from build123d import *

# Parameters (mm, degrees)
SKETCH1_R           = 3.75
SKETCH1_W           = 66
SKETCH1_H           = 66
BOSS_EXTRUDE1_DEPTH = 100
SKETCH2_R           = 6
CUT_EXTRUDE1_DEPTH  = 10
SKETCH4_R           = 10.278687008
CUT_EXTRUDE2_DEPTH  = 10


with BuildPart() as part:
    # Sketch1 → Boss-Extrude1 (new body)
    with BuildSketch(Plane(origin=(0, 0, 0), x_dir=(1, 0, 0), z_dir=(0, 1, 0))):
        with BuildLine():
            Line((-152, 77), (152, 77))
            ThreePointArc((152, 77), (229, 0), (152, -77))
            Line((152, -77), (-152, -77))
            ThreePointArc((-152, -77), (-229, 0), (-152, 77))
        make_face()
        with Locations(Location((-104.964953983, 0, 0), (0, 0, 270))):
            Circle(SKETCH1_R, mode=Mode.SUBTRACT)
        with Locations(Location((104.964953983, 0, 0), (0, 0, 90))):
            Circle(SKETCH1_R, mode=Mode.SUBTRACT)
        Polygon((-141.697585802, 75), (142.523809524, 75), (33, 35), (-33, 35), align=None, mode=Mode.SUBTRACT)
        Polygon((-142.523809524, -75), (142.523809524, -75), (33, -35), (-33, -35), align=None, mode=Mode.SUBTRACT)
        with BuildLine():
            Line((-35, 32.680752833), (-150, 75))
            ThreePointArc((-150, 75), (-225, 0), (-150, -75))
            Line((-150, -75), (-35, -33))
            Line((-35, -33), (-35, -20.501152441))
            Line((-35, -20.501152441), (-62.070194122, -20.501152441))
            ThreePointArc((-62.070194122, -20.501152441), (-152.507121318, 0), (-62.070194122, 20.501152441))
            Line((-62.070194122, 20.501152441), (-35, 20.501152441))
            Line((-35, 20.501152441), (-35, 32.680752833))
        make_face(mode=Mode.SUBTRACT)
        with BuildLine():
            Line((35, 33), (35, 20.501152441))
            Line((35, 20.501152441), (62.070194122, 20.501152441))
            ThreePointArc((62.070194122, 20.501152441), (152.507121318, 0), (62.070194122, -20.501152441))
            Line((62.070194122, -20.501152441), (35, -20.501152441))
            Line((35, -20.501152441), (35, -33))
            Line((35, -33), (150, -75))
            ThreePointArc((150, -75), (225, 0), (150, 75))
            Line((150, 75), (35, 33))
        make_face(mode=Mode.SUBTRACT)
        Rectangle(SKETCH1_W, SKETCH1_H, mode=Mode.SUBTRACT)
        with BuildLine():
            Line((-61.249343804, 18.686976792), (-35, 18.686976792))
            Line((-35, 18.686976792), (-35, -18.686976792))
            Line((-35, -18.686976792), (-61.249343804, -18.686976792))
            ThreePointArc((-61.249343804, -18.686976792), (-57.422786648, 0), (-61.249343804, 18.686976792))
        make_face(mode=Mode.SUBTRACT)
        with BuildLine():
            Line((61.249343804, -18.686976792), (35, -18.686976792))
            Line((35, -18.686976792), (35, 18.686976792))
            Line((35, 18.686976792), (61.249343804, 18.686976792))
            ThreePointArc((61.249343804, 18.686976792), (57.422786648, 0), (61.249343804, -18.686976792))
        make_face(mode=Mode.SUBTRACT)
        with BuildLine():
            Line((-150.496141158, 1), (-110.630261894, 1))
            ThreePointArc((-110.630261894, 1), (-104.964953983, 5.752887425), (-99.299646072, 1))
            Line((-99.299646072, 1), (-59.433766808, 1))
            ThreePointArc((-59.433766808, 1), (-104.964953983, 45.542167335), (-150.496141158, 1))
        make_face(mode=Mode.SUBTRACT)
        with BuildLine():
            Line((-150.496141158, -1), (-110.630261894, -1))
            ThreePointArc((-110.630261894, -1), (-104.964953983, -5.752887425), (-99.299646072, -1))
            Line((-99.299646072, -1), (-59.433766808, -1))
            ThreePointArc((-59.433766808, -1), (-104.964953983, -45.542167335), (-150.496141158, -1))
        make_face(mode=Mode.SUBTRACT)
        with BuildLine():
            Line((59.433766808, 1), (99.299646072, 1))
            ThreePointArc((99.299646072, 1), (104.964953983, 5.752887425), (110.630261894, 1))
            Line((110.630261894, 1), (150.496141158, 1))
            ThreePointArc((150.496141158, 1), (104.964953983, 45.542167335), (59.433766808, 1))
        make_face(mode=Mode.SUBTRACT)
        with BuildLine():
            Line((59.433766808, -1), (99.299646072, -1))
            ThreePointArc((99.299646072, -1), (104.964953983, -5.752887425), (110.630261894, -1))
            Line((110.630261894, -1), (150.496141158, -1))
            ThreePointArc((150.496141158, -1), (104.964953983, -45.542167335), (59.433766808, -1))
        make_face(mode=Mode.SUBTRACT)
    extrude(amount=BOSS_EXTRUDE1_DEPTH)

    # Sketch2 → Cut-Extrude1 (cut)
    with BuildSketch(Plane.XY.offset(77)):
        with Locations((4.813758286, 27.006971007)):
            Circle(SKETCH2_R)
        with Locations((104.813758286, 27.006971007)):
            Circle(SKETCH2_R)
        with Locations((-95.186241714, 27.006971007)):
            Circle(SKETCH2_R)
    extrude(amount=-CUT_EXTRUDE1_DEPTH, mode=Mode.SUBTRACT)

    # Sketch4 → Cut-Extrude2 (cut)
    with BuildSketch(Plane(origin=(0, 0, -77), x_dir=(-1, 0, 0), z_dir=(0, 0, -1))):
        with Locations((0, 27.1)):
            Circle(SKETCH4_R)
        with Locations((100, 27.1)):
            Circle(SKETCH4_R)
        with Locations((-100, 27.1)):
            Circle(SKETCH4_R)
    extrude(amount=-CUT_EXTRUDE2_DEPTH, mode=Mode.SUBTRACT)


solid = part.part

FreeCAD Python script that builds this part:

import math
import FreeCAD as App
import Part
import Sketcher
from FreeCAD import Vector


def add_polygon(sketch, points):
    """Adds a closed chain of lines whose ends are joined by coincident constraints."""
    first, n = sketch.GeometryCount, len(points)
    for a, b in zip(points, points[1:] + points[:1]):
        sketch.addGeometry(Part.LineSegment(App.Vector(*a, 0), App.Vector(*b, 0)), False)
    for i in range(n):
        sketch.addConstraint(Sketcher.Constraint("Coincident", first + i, 2, first + (i + 1) % n, 1))

doc = App.newDocument("Part")
body = doc.addObject("PartDesign::Body", "Body")

# Sketch on XZ plane
sketch1 = body.newObject("Sketcher::SketchObject", "Sketch")
sketch1.AttachmentSupport = (doc.getObject("XZ_Plane"), [""])
sketch1.MapMode = "FlatFace"
sketch1.addGeometry(Part.LineSegment(Vector(152, -77, 0), Vector(-152, -77, 0)), False)  # 0
sketch1.addGeometry(Part.ArcOfCircle(Part.Circle(Vector(-152, 0, 0), Vector(0, 0, 1), 77), math.radians(90), math.radians(270)), False)  # 1
sketch1.addGeometry(Part.LineSegment(Vector(-152, 77, 0), Vector(152, 77, 0)), False)  # 2
sketch1.addGeometry(Part.ArcOfCircle(Part.Circle(Vector(152, 0, 0), Vector(0, 0, 1), 77), math.radians(-90), math.radians(90)), False)  # 3
sketch1.addGeometry(Part.LineSegment(Vector(59.433767, 1, 0), Vector(99.299646, 1, 0)), False)  # 4
sketch1.addGeometry(Part.ArcOfCircle(Part.Circle(Vector(104.964954, 0, 0), Vector(0, 0, 1), 5.752887), math.radians(10.010332), math.radians(169.989668)), False)  # 5
sketch1.addGeometry(Part.LineSegment(Vector(110.630262, 1, 0), Vector(150.496141, 1, 0)), False)  # 6
sketch1.addGeometry(Part.ArcOfCircle(Part.Circle(Vector(104.964954, 0, 0), Vector(0, 0, 1), 45.542167), math.radians(1.258183), math.radians(178.741817)), False)  # 7
add_polygon(sketch1, [(-142.52381, 75), (-33, 35), (33, 35), (142.52381, 75)])  # lines 8-11
sketch1.addGeometry(Part.LineSegment(Vector(-150.496141, 1, 0), Vector(-110.630262, 1, 0)), False)  # 12
sketch1.addGeometry(Part.ArcOfCircle(Part.Circle(Vector(-104.964954, 0, 0), Vector(0, 0, 1), 5.752887), math.radians(10.010332), math.radians(169.989668)), False)  # 13
sketch1.addGeometry(Part.LineSegment(Vector(-99.299646, 1, 0), Vector(-59.433767, 1, 0)), False)  # 14
sketch1.addGeometry(Part.ArcOfCircle(Part.Circle(Vector(-104.964954, 0, 0), Vector(0, 0, 1), 45.542167), math.radians(1.258183), math.radians(178.741817)), False)  # 15
sketch1.addGeometry(Part.LineSegment(Vector(35, -33, 0), Vector(150, -75, 0)), False)  # 16
sketch1.addGeometry(Part.ArcOfCircle(Part.Circle(Vector(150, 0, 0), Vector(0, 0, 1), 75), math.radians(-90), math.radians(90)), False)  # 17
sketch1.addGeometry(Part.LineSegment(Vector(150, 75, 0), Vector(35, 33, 0)), False)  # 18
sketch1.addGeometry(Part.LineSegment(Vector(35, 33, 0), Vector(35, 20.501152, 0)), False)  # 19
sketch1.addGeometry(Part.LineSegment(Vector(35, 20.501152, 0), Vector(62.070194, 20.501152, 0)), False)  # 20
sketch1.addGeometry(Part.ArcOfCircle(Part.Circle(Vector(104.964954, 0, 0), Vector(0, 0, 1), 47.542167), math.radians(-154.454965), math.radians(154.454965)), False)  # 21
sketch1.addGeometry(Part.LineSegment(Vector(62.070194, -20.501152, 0), Vector(35, -20.501152, 0)), False)  # 22
sketch1.addGeometry(Part.LineSegment(Vector(35, -20.501152, 0), Vector(35, -33, 0)), False)  # 23
sketch1.addGeometry(Part.Circle(Vector(104.964954, 0, 0), Vector(0, 0, 1), 3.75), False)  # 24
sketch1.addGeometry(Part.LineSegment(Vector(61.249344, 18.686977, 0), Vector(35, 18.686977, 0)), False)  # 25
sketch1.addGeometry(Part.LineSegment(Vector(35, 18.686977, 0), Vector(35, -18.686977, 0)), False)  # 26
sketch1.addGeometry(Part.LineSegment(Vector(35, -18.686977, 0), Vector(61.249344, -18.686977, 0)), False)  # 27
sketch1.addGeometry(Part.ArcOfCircle(Part.Circle(Vector(104.964954, 0, 0), Vector(0, 0, 1), 47.542167), math.radians(156.854895), math.radians(203.145105)), False)  # 28
sketch1.addGeometry(Part.ArcOfCircle(Part.Circle(Vector(104.964954, 0, 0), Vector(0, 0, 1), 45.542167), math.radians(-178.741817), math.radians(-1.258183)), False)  # 29
sketch1.addGeometry(Part.LineSegment(Vector(150.496141, -1, 0), Vector(110.630262, -1, 0)), False)  # 30
sketch1.addGeometry(Part.ArcOfCircle(Part.Circle(Vector(104.964954, 0, 0), Vector(0, 0, 1), 5.752887), math.radians(-169.989668), math.radians(-10.010332)), False)  # 31
sketch1.addGeometry(Part.LineSegment(Vector(99.299646, -1, 0), Vector(59.433767, -1, 0)), False)  # 32
add_polygon(sketch1, [(-141.697586, -75), (142.52381, -75), (33, -35), (-33, -35)])  # lines 33-36
add_polygon(sketch1, [(-33, 33), (-33, -33), (33, -33), (33, 33)])  # lines 37-40
sketch1.addGeometry(Part.LineSegment(Vector(-61.249344, -18.686977, 0), Vector(-35, -18.686977, 0)), False)  # 41
sketch1.addGeometry(Part.LineSegment(Vector(-35, -18.686977, 0), Vector(-35, 18.686977, 0)), False)  # 42
sketch1.addGeometry(Part.LineSegment(Vector(-35, 18.686977, 0), Vector(-61.249344, 18.686977, 0)), False)  # 43
sketch1.addGeometry(Part.ArcOfCircle(Part.Circle(Vector(-104.964954, 0, 0), Vector(0, 0, 1), 47.542167), math.radians(-23.145105), math.radians(23.145105)), False)  # 44
sketch1.addGeometry(Part.Circle(Vector(-104.964954, 0, 0), Vector(0, 0, 1), 3.75), False)  # 45
sketch1.addGeometry(Part.ArcOfCircle(Part.Circle(Vector(-104.964954, 0, 0), Vector(0, 0, 1), 45.542167), math.radians(-178.741817), math.radians(-1.258183)), False)  # 46
sketch1.addGeometry(Part.LineSegment(Vector(-59.433767, -1, 0), Vector(-99.299646, -1, 0)), False)  # 47
sketch1.addGeometry(Part.ArcOfCircle(Part.Circle(Vector(-104.964954, 0, 0), Vector(0, 0, 1), 5.752887), math.radians(-169.989668), math.radians(-10.010332)), False)  # 48
sketch1.addGeometry(Part.LineSegment(Vector(-110.630262, -1, 0), Vector(-150.496141, -1, 0)), False)  # 49
sketch1.addGeometry(Part.LineSegment(Vector(-35, -32.680753, 0), Vector(-35, -20.501152, 0)), False)  # 50
sketch1.addGeometry(Part.LineSegment(Vector(-35, -20.501152, 0), Vector(-62.070194, -20.501152, 0)), False)  # 51
sketch1.addGeometry(Part.ArcOfCircle(Part.Circle(Vector(-104.964954, 0, 0), Vector(0, 0, 1), 47.542167), math.radians(25.545035), math.radians(334.454965)), False)  # 52
sketch1.addGeometry(Part.LineSegment(Vector(-62.070194, 20.501152, 0), Vector(-35, 20.501152, 0)), False)  # 53
sketch1.addGeometry(Part.LineSegment(Vector(-35, 20.501152, 0), Vector(-35, 33, 0)), False)  # 54
sketch1.addGeometry(Part.LineSegment(Vector(-35, 33, 0), Vector(-150, 75, 0)), False)  # 55
sketch1.addGeometry(Part.ArcOfCircle(Part.Circle(Vector(-150, 0, 0), Vector(0, 0, 1), 75), math.radians(90), math.radians(270)), False)  # 56
sketch1.addGeometry(Part.LineSegment(Vector(-150, -75, 0), Vector(-35, -32.680753, 0)), False)  # 57
sketch1.addConstraint(Sketcher.Constraint("Tangent", 0, 2, 1, 2))
sketch1.addConstraint(Sketcher.Constraint("Tangent", 1, 1, 2, 1))
sketch1.addConstraint(Sketcher.Constraint("Tangent", 2, 2, 3, 2))
sketch1.addConstraint(Sketcher.Constraint("Tangent", 3, 1, 0, 1))
sketch1.addConstraint(Sketcher.Constraint("Coincident", 4, 2, 5, 2))
sketch1.addConstraint(Sketcher.Constraint("Coincident", 5, 1, 6, 1))
sketch1.addConstraint(Sketcher.Constraint("Coincident", 6, 2, 7, 1))
sketch1.addConstraint(Sketcher.Constraint("Coincident", 7, 2, 4, 1))
sketch1.addConstraint(Sketcher.Constraint("Coincident", 12, 2, 13, 2))
sketch1.addConstraint(Sketcher.Constraint("Coincident", 13, 1, 14, 1))
sketch1.addConstraint(Sketcher.Constraint("Coincident", 14, 2, 15, 1))
sketch1.addConstraint(Sketcher.Constraint("Coincident", 15, 2, 12, 1))
sketch1.addConstraint(Sketcher.Constraint("Coincident", 16, 2, 17, 1))
sketch1.addConstraint(Sketcher.Constraint("Coincident", 17, 2, 18, 1))
sketch1.addConstraint(Sketcher.Constraint("Coincident", 18, 2, 19, 1))
sketch1.addConstraint(Sketcher.Constraint("Coincident", 19, 2, 20, 1))
sketch1.addConstraint(Sketcher.Constraint("Coincident", 20, 2, 21, 2))
sketch1.addConstraint(Sketcher.Constraint("Coincident", 21, 1, 22, 1))
sketch1.addConstraint(Sketcher.Constraint("Coincident", 22, 2, 23, 1))
sketch1.addConstraint(Sketcher.Constraint("Coincident", 23, 2, 16, 1))
sketch1.addConstraint(Sketcher.Constraint("Coincident", 25, 2, 26, 1))
sketch1.addConstraint(Sketcher.Constraint("Coincident", 26, 2, 27, 1))
sketch1.addConstraint(Sketcher.Constraint("Coincident", 27, 2, 28, 2))
sketch1.addConstraint(Sketcher.Constraint("Coincident", 28, 1, 25, 1))
sketch1.addConstraint(Sketcher.Constraint("Coincident", 29, 2, 30, 1))
sketch1.addConstraint(Sketcher.Constraint("Coincident", 30, 2, 31, 2))
sketch1.addConstraint(Sketcher.Constraint("Coincident", 31, 1, 32, 1))
sketch1.addConstraint(Sketcher.Constraint("Coincident", 32, 2, 29, 1))
sketch1.addConstraint(Sketcher.Constraint("Coincident", 41, 2, 42, 1))
sketch1.addConstraint(Sketcher.Constraint("Coincident", 42, 2, 43, 1))
sketch1.addConstraint(Sketcher.Constraint("Coincident", 43, 2, 44, 2))
sketch1.addConstraint(Sketcher.Constraint("Coincident", 44, 1, 41, 1))
sketch1.addConstraint(Sketcher.Constraint("Coincident", 46, 2, 47, 1))
sketch1.addConstraint(Sketcher.Constraint("Coincident", 47, 2, 48, 2))
sketch1.addConstraint(Sketcher.Constraint("Coincident", 48, 1, 49, 1))
sketch1.addConstraint(Sketcher.Constraint("Coincident", 49, 2, 46, 1))
sketch1.addConstraint(Sketcher.Constraint("Coincident", 50, 2, 51, 1))
sketch1.addConstraint(Sketcher.Constraint("Coincident", 51, 2, 52, 2))
sketch1.addConstraint(Sketcher.Constraint("Coincident", 52, 1, 53, 1))
sketch1.addConstraint(Sketcher.Constraint("Coincident", 53, 2, 54, 1))
sketch1.addConstraint(Sketcher.Constraint("Coincident", 54, 2, 55, 1))
sketch1.addConstraint(Sketcher.Constraint("Coincident", 55, 2, 56, 1))
sketch1.addConstraint(Sketcher.Constraint("Coincident", 56, 2, 57, 1))
sketch1.addConstraint(Sketcher.Constraint("Coincident", 57, 2, 50, 1))
sketch1.addConstraint(Sketcher.Constraint("Horizontal", 0))
sketch1.addConstraint(Sketcher.Constraint("Horizontal", 2))
sketch1.addConstraint(Sketcher.Constraint("Horizontal", 4))
sketch1.addConstraint(Sketcher.Constraint("Horizontal", 6))
sketch1.addConstraint(Sketcher.Constraint("Horizontal", 9))
sketch1.addConstraint(Sketcher.Constraint("Horizontal", 11))
sketch1.addConstraint(Sketcher.Constraint("Horizontal", 12))
sketch1.addConstraint(Sketcher.Constraint("Horizontal", 14))
sketch1.addConstraint(Sketcher.Constraint("Vertical", 19))
sketch1.addConstraint(Sketcher.Constraint("Horizontal", 20))
sketch1.addConstraint(Sketcher.Constraint("Horizontal", 22))
sketch1.addConstraint(Sketcher.Constraint("Vertical", 23))
sketch1.addConstraint(Sketcher.Constraint("Horizontal", 25))
sketch1.addConstraint(Sketcher.Constraint("Vertical", 26))
sketch1.addConstraint(Sketcher.Constraint("Horizontal", 27))
sketch1.addConstraint(Sketcher.Constraint("Horizontal", 30))
sketch1.addConstraint(Sketcher.Constraint("Horizontal", 32))
sketch1.addConstraint(Sketcher.Constraint("Horizontal", 33))
sketch1.addConstraint(Sketcher.Constraint("Horizontal", 35))
sketch1.addConstraint(Sketcher.Constraint("Vertical", 37))
sketch1.addConstraint(Sketcher.Constraint("Horizontal", 38))
sketch1.addConstraint(Sketcher.Constraint("Vertical", 39))
sketch1.addConstraint(Sketcher.Constraint("Horizontal", 40))
sketch1.addConstraint(Sketcher.Constraint("Horizontal", 41))
sketch1.addConstraint(Sketcher.Constraint("Vertical", 42))
sketch1.addConstraint(Sketcher.Constraint("Horizontal", 43))
sketch1.addConstraint(Sketcher.Constraint("Horizontal", 47))
sketch1.addConstraint(Sketcher.Constraint("Horizontal", 49))
sketch1.addConstraint(Sketcher.Constraint("Vertical", 50))
sketch1.addConstraint(Sketcher.Constraint("Horizontal", 51))
sketch1.addConstraint(Sketcher.Constraint("Horizontal", 53))
sketch1.addConstraint(Sketcher.Constraint("Vertical", 54))
sketch1.addConstraint(Sketcher.Constraint("Coincident", 7, 3, 5, 3))
sketch1.addConstraint(Sketcher.Constraint("Coincident", 15, 3, 13, 3))
sketch1.addConstraint(Sketcher.Constraint("Coincident", 21, 3, 5, 3))
sketch1.addConstraint(Sketcher.Constraint("Coincident", 24, 3, 5, 3))
sketch1.addConstraint(Sketcher.Constraint("Coincident", 28, 3, 5, 3))
sketch1.addConstraint(Sketcher.Constraint("Coincident", 29, 3, 5, 3))
sketch1.addConstraint(Sketcher.Constraint("Coincident", 31, 3, 5, 3))
sketch1.addConstraint(Sketcher.Constraint("Coincident", 44, 3, 13, 3))
sketch1.addConstraint(Sketcher.Constraint("Coincident", 45, 3, 13, 3))
sketch1.addConstraint(Sketcher.Constraint("Coincident", 46, 3, 13, 3))
sketch1.addConstraint(Sketcher.Constraint("Coincident", 48, 3, 13, 3))
sketch1.addConstraint(Sketcher.Constraint("Coincident", 52, 3, 13, 3))
sketch1.addConstraint(Sketcher.Constraint("Equal", 5, 13))
sketch1.addConstraint(Sketcher.Constraint("Equal", 7, 15))
sketch1.addConstraint(Sketcher.Constraint("Equal", 21, 28))
sketch1.addConstraint(Sketcher.Constraint("Equal", 15, 29))
sketch1.addConstraint(Sketcher.Constraint("Equal", 13, 31))
sketch1.addConstraint(Sketcher.Constraint("Equal", 28, 44))
sketch1.addConstraint(Sketcher.Constraint("Equal", 24, 45))
sketch1.addConstraint(Sketcher.Constraint("Equal", 29, 46))
sketch1.addConstraint(Sketcher.Constraint("Equal", 31, 48))
sketch1.addConstraint(Sketcher.Constraint("Equal", 44, 52))
sketch1.addConstraint(Sketcher.Constraint("Equal", 17, 56))
sketch1.addConstraint(Sketcher.Constraint("Symmetric", 1, 3, 3, 3, -1, 1))
sketch1.addConstraint(Sketcher.Constraint("Symmetric", 5, 3, 13, 3, -1, 1))
sketch1.addConstraint(Sketcher.Constraint("Symmetric", 17, 3, 56, 3, -1, 1))
sketch1.addConstraint(Sketcher.Constraint("Symmetric", 11, 2, 33, 2, -1, 1))
sketch1.addConstraint(Sketcher.Constraint("Symmetric", 8, 2, 34, 2, -1, 1))
sketch1.addConstraint(Sketcher.Constraint("Symmetric", 37, 2, 39, 2, -1, 1))
sketch1.addConstraint(Sketcher.Constraint("Symmetric", 25, 2, 41, 2, -1, 1))
sketch1.addConstraint(Sketcher.Constraint("Symmetric", 19, 2, 50, 2, -1, 1))
sketch1.addConstraint(Sketcher.Constraint("Symmetric", 22, 2, 53, 2, -1, 1))
sketch1.addConstraint(Sketcher.Constraint("Symmetric", 5, 1, 12, 2, -2))
sketch1.addConstraint(Sketcher.Constraint("Symmetric", 22, 2, 50, 2, -2))
sketch1.addConstraint(Sketcher.Constraint("Symmetric", 17, 2, 55, 2, -2))
sketch1.addConstraint(Sketcher.Constraint("Parallel", 8, 16))
sketch1.addConstraint(Sketcher.Constraint("Parallel", 10, 18))
sketch1.addConstraint(Sketcher.Constraint("Parallel", 34, 55))
sketch1.addConstraint(Sketcher.Constraint("Parallel", 36, 57))
sketch1.addConstraint(Sketcher.Constraint("Horizontal", 4, 2, 5, 1))
sketch1.addConstraint(Sketcher.Constraint("Horizontal", 12, 2, 13, 1))
sketch1.addConstraint(Sketcher.Constraint("Horizontal", 11, 2, 17, 2))
sketch1.addConstraint(Sketcher.Constraint("Horizontal", 30, 2, 31, 1))
sketch1.addConstraint(Sketcher.Constraint("Horizontal", 23, 2, 37, 2))
sketch1.addConstraint(Sketcher.Constraint("Horizontal", 18, 2, 39, 2))
sketch1.addConstraint(Sketcher.Constraint("Horizontal", 27, 2, 41, 2))
sketch1.addConstraint(Sketcher.Constraint("Horizontal", 28, 1, 42, 2))
sketch1.addConstraint(Sketcher.Constraint("Horizontal", 32, 2, 46, 2))
sketch1.addConstraint(Sketcher.Constraint("Horizontal", 47, 2, 48, 1))
sketch1.addConstraint(Sketcher.Constraint("Horizontal", 40, 2, 54, 2))
sketch1.addConstraint(Sketcher.Constraint("Vertical", 17, 3, 16, 2))
sketch1.addConstraint(Sketcher.Constraint("Vertical", 23, 2, 25, 2))
sketch1.addConstraint(Sketcher.Constraint("Vertical", 6, 2, 29, 2))
sketch1.addConstraint(Sketcher.Constraint("Vertical", 10, 2, 33, 2))
sketch1.addConstraint(Sketcher.Constraint("Vertical", 8, 2, 35, 2))
sketch1.addConstraint(Sketcher.Constraint("Vertical", 35, 2, 37, 2))
sketch1.addConstraint(Sketcher.Constraint("Vertical", 55, 2, 56, 2))
sketch1.addConstraint(Sketcher.Constraint("Equal", 40, 37))
sketch1.addConstraint(Sketcher.Constraint("Radius", 1, 77.0))
sketch1.addConstraint(Sketcher.Constraint("Radius", 17, 75.0))
sketch1.addConstraint(Sketcher.Constraint("Diameter", 24, 7.5))
sketch1.addConstraint(Sketcher.Constraint("DistanceX", 0, 2, 0, 1, 304.0))
sketch1.addConstraint(Sketcher.Constraint("DistanceX", 9, 1, 9, 2, 66.0))
sketch1.addConstraint(Sketcher.Constraint("DistanceX", -1, 1, 17, 3, 150.0))
sketch1.addConstraint(Sketcher.Constraint("DistanceY", -1, 1, 4, 2, 1.0))
sketch1.addConstraint(Sketcher.Constraint("DistanceY", -1, 1, 8, 2, 35.0))
sketch1.addConstraint(Sketcher.Constraint("DistanceX", -1, 1, 18, 2, 35.0))
sketch1.addConstraint(Sketcher.Constraint("DistanceY", 50, 1, 50, 2, 12.1796))
sketch1.addConstraint(Sketcher.Constraint("Radius", 5, 5.752887))
sketch1.addConstraint(Sketcher.Constraint("Radius", 7, 45.542167))
sketch1.addConstraint(Sketcher.Constraint("Radius", 21, 47.542167))
sketch1.addConstraint(Sketcher.Constraint("DistanceX", 20, 1, 20, 2, 27.070194))
sketch1.addConstraint(Sketcher.Constraint("DistanceX", 25, 2, 25, 1, 26.249344))
sketch1.addConstraint(Sketcher.Constraint("DistanceX", 33, 1, 33, 2, 284.221395))
pad1 = body.newObject("PartDesign::Pad", "Pad")
pad1.Profile = sketch1
pad1.Length = 100
pad1.Reversed = True

# Sketch on XY plane
sketch2 = body.newObject("Sketcher::SketchObject", "Sketch001")
sketch2.AttachmentSupport = (doc.getObject("XY_Plane"), [""])
sketch2.MapMode = "FlatFace"
sketch2.AttachmentOffset = App.Placement(Vector(0, 0, 77), App.Rotation())
sketch2.addGeometry(Part.Circle(Vector(4.813758, 27.006971, 0), Vector(0, 0, 1), 6), False)
sketch2.addGeometry(Part.Circle(Vector(104.813758, 27.006971, 0), Vector(0, 0, 1), 6), False)
sketch2.addGeometry(Part.Circle(Vector(-95.186242, 27.006971, 0), Vector(0, 0, 1), 6), False)
sketch2.addConstraint(Sketcher.Constraint("Equal", 0, 1))
sketch2.addConstraint(Sketcher.Constraint("Equal", 1, 2))
sketch2.addConstraint(Sketcher.Constraint("Horizontal", 0, 3, 1, 3))
sketch2.addConstraint(Sketcher.Constraint("Horizontal", 1, 3, 2, 3))
sketch2.addConstraint(Sketcher.Constraint("Diameter", 0, 12.0))
sketch2.addConstraint(Sketcher.Constraint("DistanceX", 0, 3, 1, 3, 100.0))
sketch2.addConstraint(Sketcher.Constraint("DistanceX", 2, 3, 0, 3, 100.0))
sketch2.addConstraint(Sketcher.Constraint("DistanceX", -1, 1, 0, 3, 4.813758))
sketch2.addConstraint(Sketcher.Constraint("DistanceY", -1, 1, 0, 3, 27.006971))
pocket1 = body.newObject("PartDesign::Pocket", "Pocket")
pocket1.Profile = sketch2
pocket1.Length = 10

# Sketch on XY plane
sketch3 = body.newObject("Sketcher::SketchObject", "Sketch002")
sketch3.AttachmentSupport = (doc.getObject("XY_Plane"), [""])
sketch3.MapMode = "FlatFace"
sketch3.AttachmentOffset = App.Placement(Vector(0, 0, -77), App.Rotation())
sketch3.addGeometry(Part.Circle(Vector(0, 27.1, 0), Vector(0, 0, 1), 10.278687), False)
sketch3.addGeometry(Part.Circle(Vector(-100, 27.1, 0), Vector(0, 0, 1), 10.278687), False)
sketch3.addGeometry(Part.Circle(Vector(100, 27.1, 0), Vector(0, 0, 1), 10.278687), False)
sketch3.addConstraint(Sketcher.Constraint("Equal", 0, 1))
sketch3.addConstraint(Sketcher.Constraint("Equal", 1, 2))
sketch3.addConstraint(Sketcher.Constraint("Symmetric", 1, 3, 2, 3, -2))
sketch3.addConstraint(Sketcher.Constraint("PointOnObject", 0, 3, -2))
sketch3.addConstraint(Sketcher.Constraint("Horizontal", 0, 3, 1, 3))
sketch3.addConstraint(Sketcher.Constraint("DistanceX", 1, 3, -1, 1, 100.0))
sketch3.addConstraint(Sketcher.Constraint("DistanceY", -1, 1, 0, 3, 27.1))
sketch3.addConstraint(Sketcher.Constraint("Diameter", 0, 20.557374))
pocket2 = body.newObject("PartDesign::Pocket", "Pocket001")
pocket2.Profile = sketch3
pocket2.Length = 10
pocket2.Reversed = True

doc.recompute()
